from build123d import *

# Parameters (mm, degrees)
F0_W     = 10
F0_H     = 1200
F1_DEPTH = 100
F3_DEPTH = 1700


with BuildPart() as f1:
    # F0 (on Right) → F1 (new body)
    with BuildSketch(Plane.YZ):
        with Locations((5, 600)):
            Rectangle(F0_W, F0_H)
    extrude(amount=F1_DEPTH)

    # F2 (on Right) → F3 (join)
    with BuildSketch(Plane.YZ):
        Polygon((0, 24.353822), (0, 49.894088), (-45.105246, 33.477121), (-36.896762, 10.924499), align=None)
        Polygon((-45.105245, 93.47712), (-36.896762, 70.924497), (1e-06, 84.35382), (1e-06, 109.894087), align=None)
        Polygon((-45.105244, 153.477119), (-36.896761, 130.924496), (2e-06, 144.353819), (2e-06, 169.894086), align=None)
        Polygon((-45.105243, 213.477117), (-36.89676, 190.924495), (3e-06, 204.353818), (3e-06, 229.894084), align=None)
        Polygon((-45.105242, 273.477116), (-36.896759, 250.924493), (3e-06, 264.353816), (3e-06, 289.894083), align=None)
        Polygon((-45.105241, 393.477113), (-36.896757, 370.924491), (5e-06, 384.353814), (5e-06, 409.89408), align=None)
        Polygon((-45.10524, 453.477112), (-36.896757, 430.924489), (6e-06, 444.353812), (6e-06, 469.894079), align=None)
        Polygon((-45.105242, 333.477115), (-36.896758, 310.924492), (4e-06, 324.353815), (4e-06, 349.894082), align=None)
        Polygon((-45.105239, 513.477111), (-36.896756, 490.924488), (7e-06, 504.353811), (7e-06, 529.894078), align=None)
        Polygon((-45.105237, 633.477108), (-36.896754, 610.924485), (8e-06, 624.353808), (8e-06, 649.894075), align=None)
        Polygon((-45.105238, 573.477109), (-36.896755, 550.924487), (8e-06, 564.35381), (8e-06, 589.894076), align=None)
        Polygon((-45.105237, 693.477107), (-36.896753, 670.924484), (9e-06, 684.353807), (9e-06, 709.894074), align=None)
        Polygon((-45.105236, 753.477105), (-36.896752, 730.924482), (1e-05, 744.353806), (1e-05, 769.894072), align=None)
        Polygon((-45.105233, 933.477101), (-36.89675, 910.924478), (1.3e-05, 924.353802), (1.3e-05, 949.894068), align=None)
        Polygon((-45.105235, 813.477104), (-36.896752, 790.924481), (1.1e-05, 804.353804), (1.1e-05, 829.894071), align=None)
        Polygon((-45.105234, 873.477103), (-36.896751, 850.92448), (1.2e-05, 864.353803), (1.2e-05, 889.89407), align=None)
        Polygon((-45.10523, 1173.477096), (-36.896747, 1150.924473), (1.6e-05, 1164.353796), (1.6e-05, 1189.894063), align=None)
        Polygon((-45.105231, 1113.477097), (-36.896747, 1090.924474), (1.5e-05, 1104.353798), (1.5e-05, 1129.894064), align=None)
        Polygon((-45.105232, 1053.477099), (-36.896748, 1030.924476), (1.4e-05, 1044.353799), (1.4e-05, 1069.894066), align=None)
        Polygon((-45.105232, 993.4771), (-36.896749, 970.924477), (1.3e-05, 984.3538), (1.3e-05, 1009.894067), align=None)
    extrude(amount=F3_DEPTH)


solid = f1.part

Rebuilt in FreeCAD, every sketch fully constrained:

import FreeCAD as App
import Part
import Sketcher
Q = App.Units.Quantity

doc = App.newDocument("Part")
body = doc.addObject("PartDesign::Body", "Body")

sketch1 = body.newObject("Sketcher::SketchObject", "Sketch")
sketch1.AttachmentSupport = (doc.getObject("YZ_Plane"), [""])
sketch1.MapMode = "FlatFace"
sketch1.addGeometry([
    Part.LineSegment(App.Vector(0, 1200, 0), App.Vector(0, 0, 0)),
    Part.LineSegment(App.Vector(0, 0, 0), App.Vector(10, 0, 0)),
    Part.LineSegment(App.Vector(10, 0, 0), App.Vector(10, 1200, 0)),
    Part.LineSegment(App.Vector(10, 1200, 0), App.Vector(0, 1200, 0)),
], False)
sketch1.addConstraint([
    Sketcher.Constraint("Coincident", 0, 2, 1, 1),
    Sketcher.Constraint("Coincident", 1, 2, 2, 1),
    Sketcher.Constraint("Coincident", 2, 2, 3, 1),
    Sketcher.Constraint("Coincident", 3, 2, 0, 1),
    Sketcher.Constraint("Vertical", 0),
    Sketcher.Constraint("Horizontal", 1),
    Sketcher.Constraint("Vertical", 2),
    Sketcher.Constraint("Horizontal", 3),
    Sketcher.Constraint("Coincident", 0, 2, -1, 1),
    Sketcher.Constraint("DistanceX", 1, 1, 1, 2, 10.0),
    Sketcher.Constraint("DistanceY", 0, 2, 0, 1, 1200.0),
])
pad1 = body.newObject("PartDesign::Pad", "Pad")
pad1.Profile = sketch1
pad1.Length = 100

sketch2 = body.newObject("Sketcher::SketchObject", "Sketch001")
sketch2.AttachmentSupport = (doc.getObject("YZ_Plane"), [""])
sketch2.MapMode = "FlatFace"
sketch2.addGeometry([
    Part.LineSegment(App.Vector(0, 24, 0), App.Vector(0, 50, 0)),
    Part.LineSegment(App.Vector(0, 50, 0), App.Vector(-45, 33, 0)),
    Part.LineSegment(App.Vector(-45, 33, 0), App.Vector(-37, 11, 0)),
    Part.LineSegment(App.Vector(-37, 11, 0), App.Vector(0, 24, 0)),
    Part.LineSegment(App.Vector(-45, 93, 0), App.Vector(-37, 71, 0)),
    Part.LineSegment(App.Vector(-37, 71, 0), App.Vector(0, 84, 0)),
    Part.LineSegment(App.Vector(0, 84, 0), App.Vector(0, 110, 0)),
    Part.LineSegment(App.Vector(0, 110, 0), App.Vector(-45, 93, 0)),
    Part.LineSegment(App.Vector(-45, 153, 0), App.Vector(-37, 131, 0)),
    Part.LineSegment(App.Vector(-37, 131, 0), App.Vector(0, 144, 0)),
    Part.LineSegment(App.Vector(0, 144, 0), App.Vector(0, 170, 0)),
    Part.LineSegment(App.Vector(0, 170, 0), App.Vector(-45, 153, 0)),
    Part.LineSegment(App.Vector(-45, 213, 0), App.Vector(-37, 191, 0)),
    Part.LineSegment(App.Vector(-37, 191, 0), App.Vector(0, 204, 0)),
    Part.LineSegment(App.Vector(0, 204, 0), App.Vector(0, 230, 0)),
    Part.LineSegment(App.Vector(0, 230, 0), App.Vector(-45, 213, 0)),
    Part.LineSegment(App.Vector(-45, 273, 0), App.Vector(-37, 251, 0)),
    Part.LineSegment(App.Vector(-37, 251, 0), App.Vector(0, 264, 0)),
    Part.LineSegment(App.Vector(0, 264, 0), App.Vector(0, 290, 0)),
    Part.LineSegment(App.Vector(0, 290, 0), App.Vector(-45, 273, 0)),
    Part.LineSegment(App.Vector(-45, 393, 0), App.Vector(-37, 371, 0)),
    Part.LineSegment(App.Vector(-37, 371, 0), App.Vector(0, 384, 0)),
    Part.LineSegment(App.Vector(0, 384, 0), App.Vector(0, 410, 0)),
    Part.LineSegment(App.Vector(0, 410, 0), App.Vector(-45, 393, 0)),
    Part.LineSegment(App.Vector(-45, 453, 0), App.Vector(-37, 431, 0)),
    Part.LineSegment(App.Vector(-37, 431, 0), App.Vector(0, 444, 0)),
    Part.LineSegment(App.Vector(0, 444, 0), App.Vector(0, 470, 0)),
    Part.LineSegment(App.Vector(0, 470, 0), App.Vector(-45, 453, 0)),
    Part.LineSegment(App.Vector(-45, 333, 0), App.Vector(-37, 311, 0)),
    Part.LineSegment(App.Vector(-37, 311, 0), App.Vector(0, 324, 0)),
    Part.LineSegment(App.Vector(0, 324, 0), App.Vector(0, 350, 0)),
    Part.LineSegment(App.Vector(0, 350, 0), App.Vector(-45, 333, 0)),
    Part.LineSegment(App.Vector(-45, 513, 0), App.Vector(-37, 491, 0)),
    Part.LineSegment(App.Vector(-37, 491, 0), App.Vector(0, 504, 0)),
    Part.LineSegment(App.Vector(0, 504, 0), App.Vector(0, 530, 0)),
    Part.LineSegment(App.Vector(0, 530, 0), App.Vector(-45, 513, 0)),
    Part.LineSegment(App.Vector(-45, 633, 0), App.Vector(-37, 611, 0)),
    Part.LineSegment(App.Vector(-37, 611, 0), App.Vector(0, 624, 0)),
    Part.LineSegment(App.Vector(0, 624, 0), App.Vector(0, 650, 0)),
    Part.LineSegment(App.Vector(0, 650, 0), App.Vector(-45, 633, 0)),
    Part.LineSegment(App.Vector(-45, 573, 0), App.Vector(-37, 551, 0)),
    Part.LineSegment(App.Vector(-37, 551, 0), App.Vector(0, 564, 0)),
    Part.LineSegment(App.Vector(0, 564, 0), App.Vector(0, 590, 0)),
    Part.LineSegment(App.Vector(0, 590, 0), App.Vector(-45, 573, 0)),
    Part.LineSegment(App.Vector(-45, 693, 0), App.Vector(-37, 671, 0)),
    Part.LineSegment(App.Vector(-37, 671, 0), App.Vector(0, 684, 0)),
    Part.LineSegment(App.Vector(0, 684, 0), App.Vector(0, 710, 0)),
    Part.LineSegment(App.Vector(0, 710, 0), App.Vector(-45, 693, 0)),
    Part.LineSegment(App.Vector(-45, 753, 0), App.Vector(-37, 731, 0)),
    Part.LineSegment(App.Vector(-37, 731, 0), App.Vector(0, 744, 0)),
    Part.LineSegment(App.Vector(0, 744, 0), App.Vector(0, 770, 0)),
    Part.LineSegment(App.Vector(0, 770, 0), App.Vector(-45, 753, 0)),
    Part.LineSegment(App.Vector(-45, 933, 0), App.Vector(-37, 911, 0)),
    Part.LineSegment(App.Vector(-37, 911, 0), App.Vector(0, 924, 0)),
    Part.LineSegment(App.Vector(0, 924, 0), App.Vector(0, 950, 0)),
    Part.LineSegment(App.Vector(0, 950, 0), App.Vector(-45, 933, 0)),
    Part.LineSegment(App.Vector(-45, 813, 0), App.Vector(-37, 791, 0)),
    Part.LineSegment(App.Vector(-37, 791, 0), App.Vector(0, 804, 0)),
    Part.LineSegment(App.Vector(0, 804, 0), App.Vector(0, 830, 0)),
    Part.LineSegment(App.Vector(0, 830, 0), App.Vector(-45, 813, 0)),
    Part.LineSegment(App.Vector(-45, 873, 0), App.Vector(-37, 851, 0)),
    Part.LineSegment(App.Vector(-37, 851, 0), App.Vector(0, 864, 0)),
    Part.LineSegment(App.Vector(0, 864, 0), App.Vector(0, 890, 0)),
    Part.LineSegment(App.Vector(0, 890, 0), App.Vector(-45, 873, 0)),
    Part.LineSegment(App.Vector(-45, 1173, 0), App.Vector(-37, 1151, 0)),
    Part.LineSegment(App.Vector(-37, 1151, 0), App.Vector(0, 1164, 0)),
    Part.LineSegment(App.Vector(0, 1164, 0), App.Vector(0, 1190, 0)),
    Part.LineSegment(App.Vector(0, 1190, 0), App.Vector(-45, 1173, 0)),
    Part.LineSegment(App.Vector(-45, 1113, 0), App.Vector(-37, 1091, 0)),
    Part.LineSegment(App.Vector(-37, 1091, 0), App.Vector(0, 1104, 0)),
    Part.LineSegment(App.Vector(0, 1104, 0), App.Vector(0, 1130, 0)),
    Part.LineSegment(App.Vector(0, 1130, 0), App.Vector(-45, 1113, 0)),
    Part.LineSegment(App.Vector(-45, 1053, 0), App.Vector(-37, 1031, 0)),
    Part.LineSegment(App.Vector(-37, 1031, 0), App.Vector(0, 1044, 0)),
    Part.LineSegment(App.Vector(0, 1044, 0), App.Vector(0, 1070, 0)),
    Part.LineSegment(App.Vector(0, 1070, 0), App.Vector(-45, 1053, 0)),
    Part.LineSegment(App.Vector(-45, 993, 0), App.Vector(-37, 971, 0)),
    Part.LineSegment(App.Vector(-37, 971, 0), App.Vector(0, 984, 0)),
    Part.LineSegment(App.Vector(0, 984, 0), App.Vector(0, 1010, 0)),
    Part.LineSegment(App.Vector(0, 1010, 0), App.Vector(-45, 993, 0)),
], False)
sketch2.addConstraint([
    Sketcher.Constraint("Coincident", 0, 2, 1, 1),
    Sketcher.Constraint("Coincident", 1, 2, 2, 1),
    Sketcher.Constraint("Coincident", 2, 2, 3, 1),
    Sketcher.Constraint("Coincident", 3, 2, 0, 1),
    Sketcher.Constraint("Coincident", 4, 2, 5, 1),
    Sketcher.Constraint("Coincident", 5, 2, 6, 1),
    Sketcher.Constraint("Coincident", 6, 2, 7, 1),
    Sketcher.Constraint("Coincident", 7, 2, 4, 1),
    Sketcher.Constraint("Coincident", 8, 2, 9, 1),
    Sketcher.Constraint("Coincident", 9, 2, 10, 1),
    Sketcher.Constraint("Coincident", 10, 2, 11, 1),
    Sketcher.Constraint("Coincident", 11, 2, 8, 1),
    Sketcher.Constraint("Coincident", 12, 2, 13, 1),
    Sketcher.Constraint("Coincident", 13, 2, 14, 1),
    Sketcher.Constraint("Coincident", 14, 2, 15, 1),
    Sketcher.Constraint("Coincident", 15, 2, 12, 1),
    Sketcher.Constraint("Coincident", 16, 2, 17, 1),
    Sketcher.Constraint("Coincident", 17, 2, 18, 1),
    Sketcher.Constraint("Coincident", 18, 2, 19, 1),
    Sketcher.Constraint("Coincident", 19, 2, 16, 1),
    Sketcher.Constraint("Coincident", 20, 2, 21, 1),
    Sketcher.Constraint("Coincident", 21, 2, 22, 1),
    Sketcher.Constraint("Coincident", 22, 2, 23, 1),
    Sketcher.Constraint("Coincident", 23, 2, 20, 1),
    Sketcher.Constraint("Coincident", 24, 2, 25, 1),
    Sketcher.Constraint("Coincident", 25, 2, 26, 1),
    Sketcher.Constraint("Coincident", 26, 2, 27, 1),
    Sketcher.Constraint("Coincident", 27, 2, 24, 1),
    Sketcher.Constraint("Coincident", 28, 2, 29, 1),
    Sketcher.Constraint("Coincident", 29, 2, 30, 1),
    Sketcher.Constraint("Coincident", 30, 2, 31, 1),
    Sketcher.Constraint("Coincident", 31, 2, 28, 1),
    Sketcher.Constraint("Coincident", 32, 2, 33, 1),
    Sketcher.Constraint("Coincident", 33, 2, 34, 1),
    Sketcher.Constraint("Coincident", 34, 2, 35, 1),
    Sketcher.Constraint("Coincident", 35, 2, 32, 1),
    Sketcher.Constraint("Coincident", 36, 2, 37, 1),
    Sketcher.Constraint("Coincident", 37, 2, 38, 1),
    Sketcher.Constraint("Coincident", 38, 2, 39, 1),
    Sketcher.Constraint("Coincident", 39, 2, 36, 1),
    Sketcher.Constraint("Coincident", 40, 2, 41, 1),
    Sketcher.Constraint("Coincident", 41, 2, 42, 1),
    Sketcher.Constraint("Coincident", 42, 2, 43, 1),
    Sketcher.Constraint("Coincident", 43, 2, 40, 1),
    Sketcher.Constraint("Coincident", 44, 2, 45, 1),
    Sketcher.Constraint("Coincident", 45, 2, 46, 1),
    Sketcher.Constraint("Coincident", 46, 2, 47, 1),
    Sketcher.Constraint("Coincident", 47, 2, 44, 1),
    Sketcher.Constraint("Coincident", 48, 2, 49, 1),
    Sketcher.Constraint("Coincident", 49, 2, 50, 1),
    Sketcher.Constraint("Coincident", 50, 2, 51, 1),
    Sketcher.Constraint("Coincident", 51, 2, 48, 1),
    Sketcher.Constraint("Coincident", 52, 2, 53, 1),
    Sketcher.Constraint("Coincident", 53, 2, 54, 1),
    Sketcher.Constraint("Coincident", 54, 2, 55, 1),
    Sketcher.Constraint("Coincident", 55, 2, 52, 1),
    Sketcher.Constraint("Coincident", 56, 2, 57, 1),
    Sketcher.Constraint("Coincident", 57, 2, 58, 1),
    Sketcher.Constraint("Coincident", 58, 2, 59, 1),
    Sketcher.Constraint("Coincident", 59, 2, 56, 1),
    Sketcher.Constraint("Coincident", 60, 2, 61, 1),
    Sketcher.Constraint("Coincident", 61, 2, 62, 1),
    Sketcher.Constraint("Coincident", 62, 2, 63, 1),
    Sketcher.Constraint("Coincident", 63, 2, 60, 1),
    Sketcher.Constraint("Coincident", 64, 2, 65, 1),
    Sketcher.Constraint("Coincident", 65, 2, 66, 1),
    Sketcher.Constraint("Coincident", 66, 2, 67, 1),
    Sketcher.Constraint("Coincident", 67, 2, 64, 1),
    Sketcher.Constraint("Coincident", 68, 2, 69, 1),
    Sketcher.Constraint("Coincident", 69, 2, 70, 1),
    Sketcher.Constraint("Coincident", 70, 2, 71, 1),
    Sketcher.Constraint("Coincident", 71, 2, 68, 1),
    Sketcher.Constraint("Coincident", 72, 2, 73, 1),
    Sketcher.Constraint("Coincident", 73, 2, 74, 1),
    Sketcher.Constraint("Coincident", 74, 2, 75, 1),
    Sketcher.Constraint("Coincident", 75, 2, 72, 1),
    Sketcher.Constraint("Coincident", 76, 2, 77, 1),
    Sketcher.Constraint("Coincident", 77, 2, 78, 1),
    Sketcher.Constraint("Coincident", 78, 2, 79, 1),
    Sketcher.Constraint("Coincident", 79, 2, 76, 1),
    Sketcher.Constraint("Vertical", 0),
    Sketcher.Constraint("Vertical", 6),
    Sketcher.Constraint("Vertical", 10),
    Sketcher.Constraint("Vertical", 14),
    Sketcher.Constraint("Vertical", 18),
    Sketcher.Constraint("Vertical", 22),
    Sketcher.Constraint("Vertical", 26),
    Sketcher.Constraint("Vertical", 30),
    Sketcher.Constraint("Vertical", 34),
    Sketcher.Constraint("Vertical", 38),
    Sketcher.Constraint("Vertical", 42),
    Sketcher.Constraint("Vertical", 46),
    Sketcher.Constraint("Vertical", 50),
    Sketcher.Constraint("Vertical", 54),
    Sketcher.Constraint("Vertical", 58),
    Sketcher.Constraint("Vertical", 62),
    Sketcher.Constraint("Vertical", 66),
    Sketcher.Constraint("Vertical", 70),
    Sketcher.Constraint("Vertical", 74),
    Sketcher.Constraint("Vertical", 78),
    Sketcher.Constraint("PointOnObject", 0, 2, -2),
    Sketcher.Constraint("PointOnObject", 5, 2, -2),
    Sketcher.Constraint("Perpendicular", 1, 2),
    Sketcher.Constraint("Perpendicular", 2, 3),
    Sketcher.Constraint("Perpendicular", 3, 4),
    Sketcher.Constraint("Perpendicular", 4, 5),
    Sketcher.Constraint("Parallel", 5, 7),
    Sketcher.Constraint("Perpendicular", 7, 8),
    Sketcher.Constraint("Perpendicular", 8, 9),
    Sketcher.Constraint("Parallel", 9, 11),
    Sketcher.Constraint("Perpendicular", 11, 12),
    Sketcher.Constraint("Perpendicular", 12, 13),
    Sketcher.Constraint("Parallel", 13, 15),
    Sketcher.Constraint("Perpendicular", 15, 16),
    Sketcher.Constraint("Perpendicular", 16, 17),
    Sketcher.Constraint("Parallel", 17, 19),
    Sketcher.Constraint("Perpendicular", 19, 20),
    Sketcher.Constraint("Perpendicular", 20, 21),
    Sketcher.Constraint("Parallel", 21, 23),
    Sketcher.Constraint("Perpendicular", 23, 24),
    Sketcher.Constraint("Perpendicular", 24, 25),
    Sketcher.Constraint("Parallel", 25, 27),
    Sketcher.Constraint("Perpendicular", 27, 28),
    Sketcher.Constraint("Perpendicular", 28, 29),
    Sketcher.Constraint("Parallel", 29, 31),
    Sketcher.Constraint("Perpendicular", 31, 32),
    Sketcher.Constraint("Perpendicular", 32, 33),
    Sketcher.Constraint("Parallel", 33, 35),
    Sketcher.Constraint("Perpendicular", 35, 36),
    Sketcher.Constraint("Perpendicular", 36, 37),
    Sketcher.Constraint("Parallel", 37, 39),
    Sketcher.Constraint("Perpendicular", 39, 40),
    Sketcher.Constraint("Perpendicular", 40, 41),
    Sketcher.Constraint("Parallel", 41, 43),
    Sketcher.Constraint("Perpendicular", 43, 44),
    Sketcher.Constraint("Perpendicular", 44, 45),
    Sketcher.Constraint("Parallel", 45, 47),
    Sketcher.Constraint("Perpendicular", 47, 48),
    Sketcher.Constraint("Perpendicular", 48, 49),
    Sketcher.Constraint("Parallel", 49, 51),
    Sketcher.Constraint("Perpendicular", 51, 52),
    Sketcher.Constraint("Perpendicular", 52, 53),
    Sketcher.Constraint("Parallel", 53, 55),
    Sketcher.Constraint("Perpendicular", 55, 56),
    Sketcher.Constraint("Perpendicular", 56, 57),
    Sketcher.Constraint("Parallel", 57, 59),
    Sketcher.Constraint("Perpendicular", 59, 60),
    Sketcher.Constraint("Perpendicular", 60, 61),
    Sketcher.Constraint("Parallel", 61, 63),
    Sketcher.Constraint("Perpendicular", 63, 64),
    Sketcher.Constraint("Perpendicular", 64, 65),
    Sketcher.Constraint("Parallel", 65, 67),
    Sketcher.Constraint("Perpendicular", 67, 68),
    Sketcher.Constraint("Perpendicular", 68, 69),
    Sketcher.Constraint("Parallel", 69, 71),
    Sketcher.Constraint("Perpendicular", 71, 72),
    Sketcher.Constraint("Perpendicular", 72, 73),
    Sketcher.Constraint("Parallel", 73, 75),
    Sketcher.Constraint("Perpendicular", 75, 76),
    Sketcher.Constraint("Perpendicular", 76, 77),
    Sketcher.Constraint("Parallel", 77, 79),
    Sketcher.Constraint("Vertical", 2, 2, 4, 2),
    Sketcher.Constraint("Vertical", 1, 2, 7, 2),
    Sketcher.Constraint("Vertical", 4, 2, 8, 2),
    Sketcher.Constraint("Vertical", 6, 2, 9, 2),
    Sketcher.Constraint("Vertical", 7, 2, 11, 2),
    Sketcher.Constraint("Vertical", 8, 2, 12, 2),
    Sketcher.Constraint("Vertical", 10, 2, 13, 2),
    Sketcher.Constraint("Vertical", 11, 2, 15, 2),
    Sketcher.Constraint("Vertical", 12, 2, 16, 2),
    Sketcher.Constraint("Vertical", 14, 2, 17, 2),
    Sketcher.Constraint("Vertical", 15, 2, 19, 2),
    Sketcher.Constraint("Vertical", 19, 2, 23, 2),
    Sketcher.Constraint("Vertical", 20, 2, 24, 2),
    Sketcher.Constraint("Vertical", 22, 2, 25, 2),
    Sketcher.Constraint("Vertical", 23, 2, 27, 2),
    Sketcher.Constraint("Vertical", 24, 2, 28, 2),
    Sketcher.Constraint("Vertical", 22, 2, 29, 2),
    Sketcher.Constraint("Vertical", 27, 2, 31, 2),
    Sketcher.Constraint("Vertical", 28, 2, 32, 2),
    Sketcher.Constraint("Vertical", 26, 2, 33, 2),
    Sketcher.Constraint("Vertical", 27, 2, 35, 2),
    Sketcher.Constraint("Vertical", 34, 2, 37, 2),
    Sketcher.Constraint("Vertical", 35, 2, 39, 2),
    Sketcher.Constraint("Vertical", 36, 2, 40, 2),
    Sketcher.Constraint("Vertical", 38, 2, 41, 2),
    Sketcher.Constraint("Vertical", 39, 2, 43, 2),
    Sketcher.Constraint("Vertical", 36, 2, 44, 2),
    Sketcher.Constraint("Vertical", 42, 2, 45, 2),
    Sketcher.Constraint("Vertical", 43, 2, 47, 2),
    Sketcher.Constraint("Vertical", 44, 2, 48, 2),
    Sketcher.Constraint("Vertical", 46, 2, 49, 2),
    Sketcher.Constraint("Vertical", 47, 2, 51, 2),
    Sketcher.Constraint("Vertical", 48, 2, 56, 2),
    Sketcher.Constraint("Vertical", 54, 2, 57, 2),
    Sketcher.Constraint("Vertical", 51, 2, 59, 2),
    Sketcher.Constraint("Vertical", 56, 2, 60, 2),
    Sketcher.Constraint("Vertical", 58, 2, 61, 2),
    Sketcher.Constraint("Vertical", 59, 2, 63, 2),
    Sketcher.Constraint("Vertical", 64, 2, 68, 2),
    Sketcher.Constraint("Vertical", 66, 2, 69, 2),
    Sketcher.Constraint("Vertical", 67, 2, 71, 2),
    Sketcher.Constraint("Vertical", 68, 2, 72, 2),
    Sketcher.Constraint("Vertical", 70, 2, 73, 2),
    Sketcher.Constraint("Vertical", 71, 2, 75, 2),
    Sketcher.Constraint("Vertical", 72, 2, 76, 2),
    Sketcher.Constraint("Vertical", 74, 2, 77, 2),
    Sketcher.Constraint("Vertical", 75, 2, 79, 2),
    Sketcher.Constraint("Equal", 18, 22),
    Sketcher.Constraint("Equal", 34, 38),
    Sketcher.Constraint("Equal", 50, 54),
    Sketcher.Constraint("Equal", 62, 66),
    Sketcher.Constraint("Equal", 17, 21),
    Sketcher.Constraint("Equal", 49, 53),
    Sketcher.Constraint("Equal", 53, 57),
    Sketcher.Constraint("Equal", 61, 65),
    Sketcher.Constraint("Angle", 1, Q("-160 deg")),
    Sketcher.Constraint("Distance", 1, 48.0),
    Sketcher.Constraint("Distance", 2, 23.999999),
    Sketcher.Constraint("DistanceY", -1, 1, 2, 2, 10.924499),
    Sketcher.Constraint("DistanceY", -1, 1, 53, 2, 924.353802),
    Sketcher.Constraint("DistanceY", -1, 1, 69, 2, 1104.353798),
    Sketcher.Constraint("DistanceY", -1, 1, 73, 2, 1044.353799),
    Sketcher.Constraint("DistanceY", -1, 1, 77, 2, 984.3538),
    Sketcher.Constraint("DistanceY", -1, 1, 5, 2, 84.35382),
    Sketcher.Constraint("DistanceY", -1, 1, 9, 2, 144.353819),
    Sketcher.Constraint("DistanceY", -1, 1, 20, 2, 370.924491),
    Sketcher.Constraint("DistanceY", -1, 1, 24, 2, 430.924489),
    Sketcher.Constraint("DistanceY", -1, 1, 28, 2, 310.924492),
    Sketcher.Constraint("DistanceY", -1, 1, 32, 2, 490.924488),
    Sketcher.Constraint("DistanceY", -1, 1, 37, 2, 624.353808),
    Sketcher.Constraint("DistanceY", -1, 1, 41, 2, 564.35381),
    Sketcher.Constraint("DistanceY", -1, 1, 48, 2, 730.924482),
    Sketcher.Constraint("DistanceY", -1, 1, 56, 2, 790.924481),
    Sketcher.Constraint("DistanceY", -1, 1, 60, 2, 850.92448),
    Sketcher.Constraint("DistanceX", 67, 2, -1, 1, 45.10523),
    Sketcher.Constraint("DistanceY", -1, 1, 12, 2, 190.924495),
    Sketcher.Constraint("DistanceY", -1, 1, 16, 2, 250.924493),
    Sketcher.Constraint("DistanceY", -1, 1, 44, 2, 670.924484),
    Sketcher.Constraint("DistanceY", -1, 1, 64, 2, 1150.924473),
])
pad2 = body.newObject("PartDesign::Pad", "Pad001")
pad2.Profile = sketch2
pad2.Length = 1700

doc.recompute()
